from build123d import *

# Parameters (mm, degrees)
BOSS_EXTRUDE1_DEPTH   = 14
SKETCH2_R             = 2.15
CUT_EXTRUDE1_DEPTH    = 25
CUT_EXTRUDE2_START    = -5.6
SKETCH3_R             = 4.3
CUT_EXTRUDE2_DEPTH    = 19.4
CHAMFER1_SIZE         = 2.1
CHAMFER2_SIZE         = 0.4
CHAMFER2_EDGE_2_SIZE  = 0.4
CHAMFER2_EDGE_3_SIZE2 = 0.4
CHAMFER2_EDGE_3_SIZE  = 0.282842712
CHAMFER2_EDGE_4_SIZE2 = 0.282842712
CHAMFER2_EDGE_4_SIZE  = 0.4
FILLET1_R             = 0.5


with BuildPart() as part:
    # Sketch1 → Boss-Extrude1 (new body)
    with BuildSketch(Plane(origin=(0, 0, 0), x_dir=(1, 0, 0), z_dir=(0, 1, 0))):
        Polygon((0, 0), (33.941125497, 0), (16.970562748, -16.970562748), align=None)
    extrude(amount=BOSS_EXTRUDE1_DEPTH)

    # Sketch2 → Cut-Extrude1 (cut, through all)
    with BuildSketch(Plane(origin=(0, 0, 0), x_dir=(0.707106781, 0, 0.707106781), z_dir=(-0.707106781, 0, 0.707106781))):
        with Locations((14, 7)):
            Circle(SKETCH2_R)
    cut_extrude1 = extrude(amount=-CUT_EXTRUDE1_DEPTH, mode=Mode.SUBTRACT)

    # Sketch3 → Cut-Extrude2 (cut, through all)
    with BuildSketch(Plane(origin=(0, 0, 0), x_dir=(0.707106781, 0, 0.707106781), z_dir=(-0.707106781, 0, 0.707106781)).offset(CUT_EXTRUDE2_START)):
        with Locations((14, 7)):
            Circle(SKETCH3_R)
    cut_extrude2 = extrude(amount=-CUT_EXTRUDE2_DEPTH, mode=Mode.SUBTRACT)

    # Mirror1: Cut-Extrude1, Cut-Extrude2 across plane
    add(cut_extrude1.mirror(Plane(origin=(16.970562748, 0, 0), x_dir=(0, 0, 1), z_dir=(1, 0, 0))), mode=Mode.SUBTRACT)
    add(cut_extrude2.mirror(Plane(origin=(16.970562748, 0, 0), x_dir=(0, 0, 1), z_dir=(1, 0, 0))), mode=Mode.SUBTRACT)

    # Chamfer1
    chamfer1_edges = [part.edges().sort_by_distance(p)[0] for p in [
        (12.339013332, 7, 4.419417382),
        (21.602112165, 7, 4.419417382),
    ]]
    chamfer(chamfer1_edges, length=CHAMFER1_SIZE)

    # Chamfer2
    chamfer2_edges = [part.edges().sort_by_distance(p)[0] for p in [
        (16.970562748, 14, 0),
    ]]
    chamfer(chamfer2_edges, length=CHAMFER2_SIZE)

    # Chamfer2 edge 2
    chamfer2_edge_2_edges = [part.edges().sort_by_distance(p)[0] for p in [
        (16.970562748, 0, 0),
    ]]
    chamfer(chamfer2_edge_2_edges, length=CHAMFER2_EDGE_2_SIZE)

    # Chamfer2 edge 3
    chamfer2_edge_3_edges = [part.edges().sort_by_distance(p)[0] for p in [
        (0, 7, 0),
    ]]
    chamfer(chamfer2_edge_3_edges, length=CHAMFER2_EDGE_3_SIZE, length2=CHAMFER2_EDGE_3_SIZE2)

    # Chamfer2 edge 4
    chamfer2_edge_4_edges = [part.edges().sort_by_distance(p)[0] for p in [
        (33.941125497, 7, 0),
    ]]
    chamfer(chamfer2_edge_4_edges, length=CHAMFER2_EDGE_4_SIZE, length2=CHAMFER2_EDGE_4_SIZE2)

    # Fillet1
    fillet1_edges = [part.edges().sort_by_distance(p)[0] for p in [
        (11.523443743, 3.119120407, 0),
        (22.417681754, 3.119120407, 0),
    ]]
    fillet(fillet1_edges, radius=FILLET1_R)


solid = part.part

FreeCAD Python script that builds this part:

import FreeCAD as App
import Part
import Sketcher

V = App.Vector
Q = App.Units.Quantity


def edges_at(feature, points):
    """Names of the edges that pass closest to the given points."""
    edges = feature.Shape.Edges
    near = lambda p: min(range(len(edges)), key=lambda i: edges[i].distToShape(Part.Vertex(*p))[0])
    return sorted({f"Edge{near(p) + 1}" for p in points})

doc = App.newDocument("Part")
body = doc.addObject("PartDesign::Body", "Body")

# Sketch on XZ plane
sketch1 = doc.addObject("Sketcher::SketchObject", "Sketch")
body.addObject(sketch1)
sketch1.AttachmentSupport = (doc.XZ_Plane, [""])
sketch1.MapMode = "FlatFace"
sketch1.addGeometry([
    Part.LineSegment(V(34, 0, 0), V(0, 0, 0)),
    Part.LineSegment(V(0, 0, 0), V(17, 17, 0)),
    Part.LineSegment(V(17, 17, 0), V(34, 0, 0)),
], False)
sketch1.addConstraint([
    Sketcher.Constraint("Coincident", 0, 2, 1, 1),
    Sketcher.Constraint("Coincident", 1, 2, 2, 1),
    Sketcher.Constraint("Coincident", 2, 2, 0, 1),
    Sketcher.Constraint("Horizontal", 0),
    Sketcher.Constraint("Coincident", 0, 2, -1, 1),
    Sketcher.Constraint("Perpendicular", 1, 2),
    Sketcher.Constraint("Equal", 1, 2),
    Sketcher.Constraint("Distance", 1, Q("24 mm")),
])
pad1 = doc.addObject("PartDesign::Pad", "Pad")
body.addObject(pad1)
pad1.Profile = sketch1
pad1.Length = 14
pad1.Reversed = True

# Sketch on an angled plane
sketch2 = doc.addObject("Sketcher::SketchObject", "Sketch001")
body.addObject(sketch2)
sketch2.Placement = App.Placement(V(0, 0, 0), App.Rotation(V(0.707106781, 0, 0.707106781), V(0, 0.999999999, 0), V(-0.707106781, 0, 0.707106781), "ZXY"))
sketch2.addGeometry(Part.Circle(V(14, 7, 0), V(0, 0, 1), 2.1), False)
sketch2.addConstraint([
    Sketcher.Constraint("Diameter", 0, Q("4.3 mm")),
    Sketcher.Constraint("DistanceX", -1, 1, 0, 3, Q("14 mm")),
    Sketcher.Constraint("DistanceY", -1, 1, 0, 3, Q("7 mm")),
])
pocket1 = doc.addObject("PartDesign::Pocket", "Pocket")
body.addObject(pocket1)
pocket1.Profile = sketch2
pocket1.Type = "ThroughAll"

# Sketch on an angled plane
sketch3 = doc.addObject("Sketcher::SketchObject", "Sketch002")
body.addObject(sketch3)
sketch3.Placement = App.Placement(V(3.959798, 0, -3.959798), App.Rotation(V(0.707106781, 0, 0.707106781), V(0, 0.999999999, 0), V(-0.707106781, 0, 0.707106781), "ZXY"))
sketch3.addGeometry(Part.Circle(V(14, 7, 0), V(0, 0, 1), 4.3), False)
sketch3.addConstraint([
    Sketcher.Constraint("Diameter", 0, Q("8.6 mm")),
    Sketcher.Constraint("DistanceX", -1, 1, 0, 3, Q("14 mm")),
    Sketcher.Constraint("DistanceY", -1, 1, 0, 3, Q("7 mm")),
])
pocket2 = doc.addObject("PartDesign::Pocket", "Pocket001")
body.addObject(pocket2)
pocket2.Profile = sketch3
pocket2.Type = "ThroughAll"
doc.recompute()

datumplane = doc.addObject("PartDesign::Plane", "DatumPlane")
body.addObject(datumplane)
datumplane.AttachmentSupport = (doc.YZ_Plane, [""])
datumplane.MapMode = "FlatFace"
datumplane.AttachmentOffset = App.Placement(V(0, 0, 16.970563), App.Rotation())
mirrored = doc.addObject("PartDesign::Mirrored", "Mirrored")
body.addObject(mirrored)
mirrored.Originals = [pocket1, pocket2]
mirrored.MirrorPlane = (datumplane, [""])
body.Tip = mirrored
doc.recompute()

chamfer = doc.addObject("PartDesign::Chamfer", "Chamfer")
body.addObject(chamfer)
chamfer.Base = (mirrored, edges_at(mirrored, [(12.339, 7, 4.419), (21.602, 7, 4.419)]))
chamfer.Size = 2.1
doc.recompute()

chamfer2 = doc.addObject("PartDesign::Chamfer", "Chamfer001")
body.addObject(chamfer2)
chamfer2.Base = (chamfer, edges_at(chamfer, [(16.971, 14, 0)]))
chamfer2.Size = 0.4
doc.recompute()

chamfer3 = doc.addObject("PartDesign::Chamfer", "Chamfer002")
body.addObject(chamfer3)
chamfer3.Base = (chamfer2, edges_at(chamfer2, [(16.971, 0, 0)]))
chamfer3.Size = 0.4
doc.recompute()

chamfer4 = doc.addObject("PartDesign::Chamfer", "Chamfer003")
body.addObject(chamfer4)
chamfer4.Base = (chamfer3, edges_at(chamfer3, [(0, 7, 0)]))
chamfer4.ChamferType = "Two distances"
chamfer4.Size = 0.282843
chamfer4.Size2 = 0.4
chamfer4.FlipDirection = True
doc.recompute()

chamfer5 = doc.addObject("PartDesign::Chamfer", "Chamfer004")
body.addObject(chamfer5)
chamfer5.Base = (chamfer4, edges_at(chamfer4, [(33.941, 7, 0)]))
chamfer5.ChamferType = "Two distances"
chamfer5.Size = 0.4
chamfer5.Size2 = 0.282843
chamfer5.FlipDirection = True
doc.recompute()

fillet = doc.addObject("PartDesign::Fillet", "Fillet")
body.addObject(fillet)
fillet.Base = (chamfer5, edges_at(chamfer5, [(11.523, 3.119, 0), (22.418, 3.119, 0)]))
fillet.Radius = 0.5

doc.recompute()
